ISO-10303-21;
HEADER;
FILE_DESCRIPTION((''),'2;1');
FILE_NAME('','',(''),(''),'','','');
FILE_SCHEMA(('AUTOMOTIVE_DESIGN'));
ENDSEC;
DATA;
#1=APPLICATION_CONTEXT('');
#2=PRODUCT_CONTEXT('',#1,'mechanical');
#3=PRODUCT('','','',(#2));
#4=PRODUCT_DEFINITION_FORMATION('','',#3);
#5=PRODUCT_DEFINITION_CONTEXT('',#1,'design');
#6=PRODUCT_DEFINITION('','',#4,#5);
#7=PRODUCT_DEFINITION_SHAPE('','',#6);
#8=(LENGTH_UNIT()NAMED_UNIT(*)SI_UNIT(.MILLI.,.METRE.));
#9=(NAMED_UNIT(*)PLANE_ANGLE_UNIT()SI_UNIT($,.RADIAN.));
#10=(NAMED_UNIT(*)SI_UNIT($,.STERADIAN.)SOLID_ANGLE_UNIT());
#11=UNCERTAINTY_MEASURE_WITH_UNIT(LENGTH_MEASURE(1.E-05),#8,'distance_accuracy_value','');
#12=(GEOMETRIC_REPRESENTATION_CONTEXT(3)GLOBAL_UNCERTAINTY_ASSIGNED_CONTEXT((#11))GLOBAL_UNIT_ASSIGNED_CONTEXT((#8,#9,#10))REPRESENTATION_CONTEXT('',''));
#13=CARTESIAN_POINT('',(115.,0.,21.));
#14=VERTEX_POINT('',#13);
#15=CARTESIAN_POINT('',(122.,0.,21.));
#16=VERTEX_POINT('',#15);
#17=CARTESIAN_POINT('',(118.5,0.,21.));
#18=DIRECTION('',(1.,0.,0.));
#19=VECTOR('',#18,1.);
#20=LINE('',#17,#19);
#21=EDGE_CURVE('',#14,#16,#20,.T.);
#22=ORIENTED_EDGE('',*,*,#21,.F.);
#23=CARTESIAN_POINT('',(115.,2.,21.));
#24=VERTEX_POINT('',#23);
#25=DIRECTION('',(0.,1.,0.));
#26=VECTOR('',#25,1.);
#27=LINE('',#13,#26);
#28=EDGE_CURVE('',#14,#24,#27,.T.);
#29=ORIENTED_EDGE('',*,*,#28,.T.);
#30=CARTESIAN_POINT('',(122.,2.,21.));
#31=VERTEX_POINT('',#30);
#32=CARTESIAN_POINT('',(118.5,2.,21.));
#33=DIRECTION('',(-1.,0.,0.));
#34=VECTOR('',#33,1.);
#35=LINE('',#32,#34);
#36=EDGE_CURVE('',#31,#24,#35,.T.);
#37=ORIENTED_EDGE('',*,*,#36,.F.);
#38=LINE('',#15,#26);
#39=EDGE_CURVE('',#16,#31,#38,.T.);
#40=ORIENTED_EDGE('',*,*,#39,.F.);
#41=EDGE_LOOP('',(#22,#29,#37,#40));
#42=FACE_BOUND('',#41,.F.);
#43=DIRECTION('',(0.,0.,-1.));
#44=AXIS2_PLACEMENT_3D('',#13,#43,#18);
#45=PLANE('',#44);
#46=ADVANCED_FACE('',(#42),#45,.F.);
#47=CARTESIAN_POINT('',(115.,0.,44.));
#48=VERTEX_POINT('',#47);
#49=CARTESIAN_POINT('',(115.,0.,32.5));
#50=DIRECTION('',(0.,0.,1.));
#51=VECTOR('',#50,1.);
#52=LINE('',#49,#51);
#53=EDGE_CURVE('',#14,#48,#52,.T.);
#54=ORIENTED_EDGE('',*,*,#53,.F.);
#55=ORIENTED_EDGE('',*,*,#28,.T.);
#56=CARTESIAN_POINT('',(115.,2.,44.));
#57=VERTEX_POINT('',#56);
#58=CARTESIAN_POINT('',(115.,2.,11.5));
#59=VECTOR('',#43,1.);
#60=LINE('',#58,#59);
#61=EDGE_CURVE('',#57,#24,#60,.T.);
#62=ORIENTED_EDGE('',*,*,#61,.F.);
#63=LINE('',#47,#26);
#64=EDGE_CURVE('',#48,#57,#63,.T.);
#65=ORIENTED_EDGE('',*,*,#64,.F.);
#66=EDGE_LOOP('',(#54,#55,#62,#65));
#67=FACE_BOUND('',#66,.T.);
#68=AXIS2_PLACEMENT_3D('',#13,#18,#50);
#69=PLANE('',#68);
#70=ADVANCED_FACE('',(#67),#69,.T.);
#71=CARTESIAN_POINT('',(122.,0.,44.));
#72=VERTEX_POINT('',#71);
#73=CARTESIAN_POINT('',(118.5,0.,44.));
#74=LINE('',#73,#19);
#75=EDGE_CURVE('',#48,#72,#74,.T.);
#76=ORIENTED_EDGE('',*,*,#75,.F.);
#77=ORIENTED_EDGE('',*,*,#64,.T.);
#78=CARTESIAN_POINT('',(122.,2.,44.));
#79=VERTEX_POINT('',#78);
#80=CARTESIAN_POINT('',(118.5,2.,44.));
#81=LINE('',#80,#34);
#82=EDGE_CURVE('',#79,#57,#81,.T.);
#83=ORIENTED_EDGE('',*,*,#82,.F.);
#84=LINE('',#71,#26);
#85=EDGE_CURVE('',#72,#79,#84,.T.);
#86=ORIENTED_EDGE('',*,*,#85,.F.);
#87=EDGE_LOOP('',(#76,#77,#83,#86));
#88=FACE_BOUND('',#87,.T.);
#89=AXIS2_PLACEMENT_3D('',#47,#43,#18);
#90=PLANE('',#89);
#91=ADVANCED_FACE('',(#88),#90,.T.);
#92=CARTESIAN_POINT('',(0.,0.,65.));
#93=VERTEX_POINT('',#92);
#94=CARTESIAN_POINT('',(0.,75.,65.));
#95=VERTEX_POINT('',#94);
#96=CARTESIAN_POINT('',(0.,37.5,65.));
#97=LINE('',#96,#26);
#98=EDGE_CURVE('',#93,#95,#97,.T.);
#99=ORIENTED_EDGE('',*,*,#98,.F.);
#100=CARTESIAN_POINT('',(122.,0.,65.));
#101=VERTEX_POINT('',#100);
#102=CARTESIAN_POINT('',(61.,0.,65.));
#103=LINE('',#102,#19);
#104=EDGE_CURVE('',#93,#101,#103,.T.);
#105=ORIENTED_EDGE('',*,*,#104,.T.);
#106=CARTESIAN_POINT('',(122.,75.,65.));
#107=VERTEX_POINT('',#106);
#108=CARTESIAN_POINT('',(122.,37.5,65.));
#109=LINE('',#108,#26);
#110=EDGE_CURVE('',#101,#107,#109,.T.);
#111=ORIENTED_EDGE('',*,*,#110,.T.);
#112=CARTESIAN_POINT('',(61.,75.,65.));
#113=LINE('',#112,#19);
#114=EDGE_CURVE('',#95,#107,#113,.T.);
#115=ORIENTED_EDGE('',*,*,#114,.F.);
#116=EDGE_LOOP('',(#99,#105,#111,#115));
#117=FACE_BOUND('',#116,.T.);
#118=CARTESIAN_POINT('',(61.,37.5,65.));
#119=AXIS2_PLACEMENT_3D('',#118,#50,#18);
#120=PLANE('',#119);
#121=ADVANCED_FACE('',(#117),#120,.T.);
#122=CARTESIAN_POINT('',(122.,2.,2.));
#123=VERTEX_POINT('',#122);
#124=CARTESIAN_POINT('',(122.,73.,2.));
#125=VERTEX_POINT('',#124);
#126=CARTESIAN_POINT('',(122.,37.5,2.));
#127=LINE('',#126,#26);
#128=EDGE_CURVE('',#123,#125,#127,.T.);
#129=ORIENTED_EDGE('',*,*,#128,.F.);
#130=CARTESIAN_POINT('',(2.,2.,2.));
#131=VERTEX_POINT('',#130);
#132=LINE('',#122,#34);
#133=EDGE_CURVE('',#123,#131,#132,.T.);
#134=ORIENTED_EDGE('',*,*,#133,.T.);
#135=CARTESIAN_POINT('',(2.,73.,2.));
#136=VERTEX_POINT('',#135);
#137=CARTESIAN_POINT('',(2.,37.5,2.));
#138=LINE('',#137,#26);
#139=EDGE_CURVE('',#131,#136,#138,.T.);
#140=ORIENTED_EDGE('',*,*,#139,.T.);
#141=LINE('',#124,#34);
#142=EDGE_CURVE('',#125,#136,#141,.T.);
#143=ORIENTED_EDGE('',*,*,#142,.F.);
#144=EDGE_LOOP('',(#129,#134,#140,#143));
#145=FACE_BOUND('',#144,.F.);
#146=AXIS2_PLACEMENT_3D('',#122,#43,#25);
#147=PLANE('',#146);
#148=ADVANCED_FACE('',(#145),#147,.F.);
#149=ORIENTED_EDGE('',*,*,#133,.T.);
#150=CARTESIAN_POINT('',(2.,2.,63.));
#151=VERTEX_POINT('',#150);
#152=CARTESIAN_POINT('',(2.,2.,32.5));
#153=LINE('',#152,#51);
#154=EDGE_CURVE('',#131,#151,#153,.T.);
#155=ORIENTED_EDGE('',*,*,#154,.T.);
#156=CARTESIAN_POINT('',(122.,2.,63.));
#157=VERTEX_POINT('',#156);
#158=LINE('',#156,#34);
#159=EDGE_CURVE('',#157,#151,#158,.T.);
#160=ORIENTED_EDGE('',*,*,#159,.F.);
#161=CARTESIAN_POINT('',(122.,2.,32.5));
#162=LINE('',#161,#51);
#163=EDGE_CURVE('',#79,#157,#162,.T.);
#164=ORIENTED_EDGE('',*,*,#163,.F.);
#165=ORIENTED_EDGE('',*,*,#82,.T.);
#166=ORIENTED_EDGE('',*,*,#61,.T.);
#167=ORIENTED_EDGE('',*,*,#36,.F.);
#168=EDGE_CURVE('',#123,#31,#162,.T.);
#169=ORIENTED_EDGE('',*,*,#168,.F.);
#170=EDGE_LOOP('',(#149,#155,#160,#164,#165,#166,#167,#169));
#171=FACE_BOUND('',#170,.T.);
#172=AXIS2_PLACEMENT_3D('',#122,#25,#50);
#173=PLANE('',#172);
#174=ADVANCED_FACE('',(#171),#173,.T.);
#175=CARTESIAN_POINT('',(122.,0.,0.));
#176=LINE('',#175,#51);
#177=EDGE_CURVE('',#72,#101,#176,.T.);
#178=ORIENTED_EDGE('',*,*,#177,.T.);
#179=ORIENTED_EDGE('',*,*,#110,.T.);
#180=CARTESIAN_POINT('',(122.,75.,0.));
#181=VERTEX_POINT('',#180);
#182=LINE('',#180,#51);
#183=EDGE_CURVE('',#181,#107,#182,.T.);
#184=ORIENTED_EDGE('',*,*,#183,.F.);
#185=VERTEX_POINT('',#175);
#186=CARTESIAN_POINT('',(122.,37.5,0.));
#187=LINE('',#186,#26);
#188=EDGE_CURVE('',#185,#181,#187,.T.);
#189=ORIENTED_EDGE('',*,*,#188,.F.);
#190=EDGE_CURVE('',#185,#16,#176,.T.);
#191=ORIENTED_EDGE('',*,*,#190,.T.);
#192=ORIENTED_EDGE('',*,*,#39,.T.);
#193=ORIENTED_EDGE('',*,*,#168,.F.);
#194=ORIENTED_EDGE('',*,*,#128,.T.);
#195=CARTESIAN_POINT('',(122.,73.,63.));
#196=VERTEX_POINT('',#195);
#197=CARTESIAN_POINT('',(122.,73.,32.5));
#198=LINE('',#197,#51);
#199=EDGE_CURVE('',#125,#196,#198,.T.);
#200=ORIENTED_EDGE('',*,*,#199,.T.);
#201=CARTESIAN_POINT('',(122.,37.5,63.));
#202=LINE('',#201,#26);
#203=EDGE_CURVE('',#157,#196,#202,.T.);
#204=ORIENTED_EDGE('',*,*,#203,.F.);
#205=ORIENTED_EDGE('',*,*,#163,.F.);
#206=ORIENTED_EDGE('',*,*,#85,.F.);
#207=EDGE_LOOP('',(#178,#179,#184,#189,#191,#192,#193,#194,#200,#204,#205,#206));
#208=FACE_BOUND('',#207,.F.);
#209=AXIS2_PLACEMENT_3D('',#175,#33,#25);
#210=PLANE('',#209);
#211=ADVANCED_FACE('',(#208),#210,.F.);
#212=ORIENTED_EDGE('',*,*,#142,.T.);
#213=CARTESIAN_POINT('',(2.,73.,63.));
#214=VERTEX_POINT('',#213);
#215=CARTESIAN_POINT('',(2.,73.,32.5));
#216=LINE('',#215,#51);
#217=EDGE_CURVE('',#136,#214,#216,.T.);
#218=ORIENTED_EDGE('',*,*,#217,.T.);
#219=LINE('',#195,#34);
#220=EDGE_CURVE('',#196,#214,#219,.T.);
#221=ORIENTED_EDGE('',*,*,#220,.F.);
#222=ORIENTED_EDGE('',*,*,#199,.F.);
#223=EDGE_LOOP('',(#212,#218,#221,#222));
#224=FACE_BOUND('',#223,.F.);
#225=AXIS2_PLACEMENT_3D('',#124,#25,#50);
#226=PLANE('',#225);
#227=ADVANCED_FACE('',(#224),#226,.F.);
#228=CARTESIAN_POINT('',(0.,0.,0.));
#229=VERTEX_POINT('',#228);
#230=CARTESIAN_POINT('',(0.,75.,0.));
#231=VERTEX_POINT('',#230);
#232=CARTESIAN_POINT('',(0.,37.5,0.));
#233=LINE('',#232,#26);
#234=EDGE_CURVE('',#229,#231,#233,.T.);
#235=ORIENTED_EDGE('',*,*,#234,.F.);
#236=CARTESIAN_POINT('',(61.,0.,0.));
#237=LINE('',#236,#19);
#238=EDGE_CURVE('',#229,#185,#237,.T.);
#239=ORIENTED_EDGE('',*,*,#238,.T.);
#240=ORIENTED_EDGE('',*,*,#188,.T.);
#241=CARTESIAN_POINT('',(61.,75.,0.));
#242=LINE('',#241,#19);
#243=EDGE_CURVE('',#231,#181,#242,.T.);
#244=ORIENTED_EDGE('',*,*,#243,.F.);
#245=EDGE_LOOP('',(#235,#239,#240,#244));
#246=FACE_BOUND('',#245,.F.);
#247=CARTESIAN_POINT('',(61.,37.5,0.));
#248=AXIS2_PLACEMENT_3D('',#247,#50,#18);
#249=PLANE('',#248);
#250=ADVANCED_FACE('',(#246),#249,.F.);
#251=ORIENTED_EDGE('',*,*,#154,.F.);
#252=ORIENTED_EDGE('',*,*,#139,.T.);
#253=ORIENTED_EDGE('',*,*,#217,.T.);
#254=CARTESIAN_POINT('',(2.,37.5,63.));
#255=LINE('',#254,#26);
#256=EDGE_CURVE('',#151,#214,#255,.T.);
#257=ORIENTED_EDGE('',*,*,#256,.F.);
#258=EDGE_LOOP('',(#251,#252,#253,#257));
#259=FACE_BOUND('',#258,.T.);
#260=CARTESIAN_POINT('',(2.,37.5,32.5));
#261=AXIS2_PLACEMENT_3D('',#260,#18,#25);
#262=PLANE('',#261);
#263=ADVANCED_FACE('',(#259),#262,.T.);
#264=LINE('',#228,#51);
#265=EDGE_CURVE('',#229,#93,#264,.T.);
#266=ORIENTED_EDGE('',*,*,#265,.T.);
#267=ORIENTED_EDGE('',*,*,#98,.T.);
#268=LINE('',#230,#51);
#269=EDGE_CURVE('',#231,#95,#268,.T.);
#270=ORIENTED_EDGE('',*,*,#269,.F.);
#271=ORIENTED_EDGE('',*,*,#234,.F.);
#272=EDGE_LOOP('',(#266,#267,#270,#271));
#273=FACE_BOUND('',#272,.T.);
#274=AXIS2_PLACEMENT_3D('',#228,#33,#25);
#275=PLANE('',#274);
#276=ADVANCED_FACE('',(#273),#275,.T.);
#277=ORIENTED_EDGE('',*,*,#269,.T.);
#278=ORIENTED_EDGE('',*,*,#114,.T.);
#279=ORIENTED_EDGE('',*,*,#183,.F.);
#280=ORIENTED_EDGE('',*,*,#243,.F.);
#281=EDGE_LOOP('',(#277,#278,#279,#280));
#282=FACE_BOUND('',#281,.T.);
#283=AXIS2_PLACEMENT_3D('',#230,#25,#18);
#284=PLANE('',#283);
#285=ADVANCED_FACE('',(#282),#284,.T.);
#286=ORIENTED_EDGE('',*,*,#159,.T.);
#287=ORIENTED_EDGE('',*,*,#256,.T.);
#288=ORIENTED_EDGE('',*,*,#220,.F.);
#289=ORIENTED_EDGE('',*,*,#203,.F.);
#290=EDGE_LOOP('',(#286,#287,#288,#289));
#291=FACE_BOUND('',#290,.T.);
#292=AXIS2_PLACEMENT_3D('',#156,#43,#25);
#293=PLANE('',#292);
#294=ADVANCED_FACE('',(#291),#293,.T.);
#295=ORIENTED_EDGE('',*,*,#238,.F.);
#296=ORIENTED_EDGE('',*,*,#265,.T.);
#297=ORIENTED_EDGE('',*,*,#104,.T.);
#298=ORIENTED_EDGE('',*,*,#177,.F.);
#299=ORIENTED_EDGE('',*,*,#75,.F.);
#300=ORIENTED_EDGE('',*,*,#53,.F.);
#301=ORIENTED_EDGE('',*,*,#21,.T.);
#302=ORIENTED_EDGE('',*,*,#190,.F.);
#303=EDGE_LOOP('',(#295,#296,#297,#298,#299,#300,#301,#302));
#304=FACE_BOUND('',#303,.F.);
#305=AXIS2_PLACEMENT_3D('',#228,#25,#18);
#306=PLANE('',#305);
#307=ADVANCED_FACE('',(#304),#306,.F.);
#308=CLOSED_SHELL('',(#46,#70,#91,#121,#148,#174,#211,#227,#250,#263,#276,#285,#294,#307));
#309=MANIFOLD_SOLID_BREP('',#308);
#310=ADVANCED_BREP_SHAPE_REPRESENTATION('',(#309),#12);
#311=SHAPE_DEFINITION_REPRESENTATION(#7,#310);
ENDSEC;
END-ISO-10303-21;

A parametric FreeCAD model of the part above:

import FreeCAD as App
import Part
import Sketcher

V = App.Vector
Q = App.Units.Quantity

doc = App.newDocument("Part")
body = doc.addObject("PartDesign::Body", "Body")

sketch1 = body.newObject("Sketcher::SketchObject", "Sketch")
sketch1.AttachmentSupport = (doc.getObject("XY_Plane"), [""])
sketch1.MapMode = "FlatFace"
sketch1.addGeometry([
    Part.LineSegment(V(0, 75, 0), V(0, 0, 0)),
    Part.LineSegment(V(0, 0, 0), V(122, 0, 0)),
    Part.LineSegment(V(122, 0, 0), V(122, 75, 0)),
    Part.LineSegment(V(122, 75, 0), V(0, 75, 0)),
], False)
sketch1.addConstraint([
    Sketcher.Constraint("Coincident", 0, 2, 1, 1),
    Sketcher.Constraint("Coincident", 1, 2, 2, 1),
    Sketcher.Constraint("Coincident", 2, 2, 3, 1),
    Sketcher.Constraint("Coincident", 3, 2, 0, 1),
    Sketcher.Constraint("Vertical", 0),
    Sketcher.Constraint("Horizontal", 1),
    Sketcher.Constraint("Vertical", 2),
    Sketcher.Constraint("Horizontal", 3),
    Sketcher.Constraint("Coincident", 0, 2, -1, 1),
    Sketcher.Constraint("DistanceX", 1, 1, 1, 2, Q("122 mm")),
    Sketcher.Constraint("DistanceY", 0, 2, 0, 1, Q("75 mm")),
])
pad1 = body.newObject("PartDesign::Pad", "Pad")
pad1.Profile = sketch1
pad1.Length = 65

sketch2 = body.newObject("Sketcher::SketchObject", "Sketch001")
sketch2.AttachmentSupport = (doc.getObject("YZ_Plane"), [""])
sketch2.MapMode = "FlatFace"
sketch2.AttachmentOffset = App.Placement(V(0, 0, 122), App.Rotation())
sketch2.addGeometry([
    Part.LineSegment(V(2, 63, 0), V(2, 2, 0)),
    Part.LineSegment(V(2, 2, 0), V(73, 2, 0)),
    Part.LineSegment(V(73, 2, 0), V(73, 63, 0)),
    Part.LineSegment(V(73, 63, 0), V(2, 63, 0)),
], False)
sketch2.addConstraint([
    Sketcher.Constraint("Coincident", 0, 2, 1, 1),
    Sketcher.Constraint("Coincident", 1, 2, 2, 1),
    Sketcher.Constraint("Coincident", 2, 2, 3, 1),
    Sketcher.Constraint("Coincident", 3, 2, 0, 1),
    Sketcher.Constraint("Vertical", 0),
    Sketcher.Constraint("Horizontal", 1),
    Sketcher.Constraint("Vertical", 2),
    Sketcher.Constraint("Horizontal", 3),
    Sketcher.Constraint("DistanceX", 1, 1, 1, 2, Q("71 mm")),
    Sketcher.Constraint("DistanceY", 0, 2, 0, 1, Q("61 mm")),
    Sketcher.Constraint("DistanceX", -1, 1, 0, 2, Q("2 mm")),
    Sketcher.Constraint("DistanceY", -1, 1, 0, 2, Q("2 mm")),
])
pocket1 = body.newObject("PartDesign::Pocket", "Pocket")
pocket1.Profile = sketch2
pocket1.Length = 120

sketch3 = body.newObject("Sketcher::SketchObject", "Sketch002")
sketch3.AttachmentSupport = (doc.getObject("XZ_Plane"), [""])
sketch3.MapMode = "FlatFace"
sketch3.addGeometry([
    Part.LineSegment(V(115, 44, 0), V(115, 21, 0)),
    Part.LineSegment(V(115, 21, 0), V(122, 21, 0)),
    Part.LineSegment(V(122, 21, 0), V(122, 44, 0)),
    Part.LineSegment(V(122, 44, 0), V(115, 44, 0)),
], False)
sketch3.addConstraint([
    Sketcher.Constraint("Coincident", 0, 2, 1, 1),
    Sketcher.Constraint("Coincident", 1, 2, 2, 1),
    Sketcher.Constraint("Coincident", 2, 2, 3, 1),
    Sketcher.Constraint("Coincident", 3, 2, 0, 1),
    Sketcher.Constraint("Vertical", 0),
    Sketcher.Constraint("Horizontal", 1),
    Sketcher.Constraint("Vertical", 2),
    Sketcher.Constraint("Horizontal", 3),
    Sketcher.Constraint("DistanceX", 1, 1, 1, 2, Q("7 mm")),
    Sketcher.Constraint("DistanceY", 0, 2, 0, 1, Q("23 mm")),
    Sketcher.Constraint("DistanceX", -1, 1, 0, 2, Q("115 mm")),
    Sketcher.Constraint("DistanceY", -1, 1, 0, 2, Q("21 mm")),
])
pocket2 = body.newObject("PartDesign::Pocket", "Pocket001")
pocket2.Profile = sketch3
pocket2.Length = 25

doc.recompute()
